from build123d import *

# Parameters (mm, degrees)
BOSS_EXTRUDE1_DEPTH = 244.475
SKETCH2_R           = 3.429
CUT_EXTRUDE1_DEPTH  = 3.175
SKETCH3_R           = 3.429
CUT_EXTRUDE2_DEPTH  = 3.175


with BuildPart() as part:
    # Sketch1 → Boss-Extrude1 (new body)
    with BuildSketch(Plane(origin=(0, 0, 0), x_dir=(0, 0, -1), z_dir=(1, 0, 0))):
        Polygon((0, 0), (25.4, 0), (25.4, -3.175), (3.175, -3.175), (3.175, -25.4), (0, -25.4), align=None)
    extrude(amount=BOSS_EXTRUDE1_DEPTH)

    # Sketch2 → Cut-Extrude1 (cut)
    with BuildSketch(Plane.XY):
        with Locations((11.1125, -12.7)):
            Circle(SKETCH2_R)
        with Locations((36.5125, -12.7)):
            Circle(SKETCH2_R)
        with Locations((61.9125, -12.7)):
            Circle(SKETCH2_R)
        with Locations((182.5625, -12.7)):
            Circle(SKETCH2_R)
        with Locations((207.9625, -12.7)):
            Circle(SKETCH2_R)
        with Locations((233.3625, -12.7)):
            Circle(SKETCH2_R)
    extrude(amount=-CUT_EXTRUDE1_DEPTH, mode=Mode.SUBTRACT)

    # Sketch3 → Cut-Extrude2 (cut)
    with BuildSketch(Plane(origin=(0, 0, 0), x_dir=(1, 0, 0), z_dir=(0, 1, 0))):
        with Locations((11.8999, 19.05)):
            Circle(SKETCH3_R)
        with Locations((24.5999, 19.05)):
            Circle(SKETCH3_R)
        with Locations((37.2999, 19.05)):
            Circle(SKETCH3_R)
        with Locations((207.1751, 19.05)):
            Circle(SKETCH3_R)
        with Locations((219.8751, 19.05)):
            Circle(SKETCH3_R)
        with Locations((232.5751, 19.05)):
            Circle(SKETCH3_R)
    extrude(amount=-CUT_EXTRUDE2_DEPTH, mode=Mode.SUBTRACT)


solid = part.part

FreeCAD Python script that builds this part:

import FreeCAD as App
import Part
import Sketcher
Q = App.Units.Quantity

doc = App.newDocument("Part")
params = doc.addObject("Spreadsheet::Sheet", "Params")
for row, (alias, value) in enumerate([
    ("sketch1_width", "1 in"),
    ("sketch1_width2", "0.875 in"),
    ("pad1_length", "9.625 in"),
    ("sketch2_diameter", "0.27 in"),
    ("pocket1_length", "0.125 in"),
    ("sketch3_diameter", "0.27 in"),
    ("pocket2_length", "0.125 in"),
], start=1):
    params.set(f"A{row}", alias)
    params.set(f"B{row}", "=" + value)
    params.setAlias(f"B{row}", alias)

body = doc.addObject("PartDesign::Body", "Body")

sketch1 = body.newObject("Sketcher::SketchObject", "Sketch")
sketch1.AttachmentSupport = (doc.getObject("YZ_Plane"), [""])
sketch1.MapMode = "FlatFace"
sketch1.addGeometry(Part.LineSegment(App.Vector(0, -25.4, 0), App.Vector(0, 0, 0)), False)
sketch1.addGeometry(Part.LineSegment(App.Vector(0, 0, 0), App.Vector(-25.4, 0, 0)), False)
sketch1.addGeometry(Part.LineSegment(App.Vector(-25.4, 0, 0), App.Vector(-25.4, -3.175, 0)), False)
sketch1.addGeometry(Part.LineSegment(App.Vector(-25.4, -3.175, 0), App.Vector(-3.175, -3.175, 0)), False)
sketch1.addGeometry(Part.LineSegment(App.Vector(-3.175, -3.175, 0), App.Vector(-3.175, -25.4, 0)), False)
sketch1.addGeometry(Part.LineSegment(App.Vector(-3.175, -25.4, 0), App.Vector(0, -25.4, 0)), False)
sketch1.addConstraint(Sketcher.Constraint("Coincident", 0, 2, 1, 1))
sketch1.addConstraint(Sketcher.Constraint("Coincident", 1, 2, 2, 1))
sketch1.addConstraint(Sketcher.Constraint("Coincident", 2, 2, 3, 1))
sketch1.addConstraint(Sketcher.Constraint("Coincident", 3, 2, 4, 1))
sketch1.addConstraint(Sketcher.Constraint("Coincident", 4, 2, 5, 1))
sketch1.addConstraint(Sketcher.Constraint("Coincident", 5, 2, 0, 1))
sketch1.addConstraint(Sketcher.Constraint("Vertical", 0))
sketch1.addConstraint(Sketcher.Constraint("Horizontal", 1))
sketch1.addConstraint(Sketcher.Constraint("Vertical", 2))
sketch1.addConstraint(Sketcher.Constraint("Horizontal", 3))
sketch1.addConstraint(Sketcher.Constraint("Vertical", 4))
sketch1.addConstraint(Sketcher.Constraint("Horizontal", 5))
sketch1.addConstraint(Sketcher.Constraint("Coincident", 0, 2, -1, 1))
sketch1.addConstraint(Sketcher.Constraint("Equal", 1, 0))
sketch1.addConstraint(Sketcher.Constraint("Equal", 5, 2))
sketch1.addConstraint(Sketcher.Constraint("DistanceX", 1, 2, 1, 1, Q("1 in")))
sketch1.addConstraint(Sketcher.Constraint("DistanceX", 3, 1, 3, 2, Q("0.875 in")))
sketch1.setExpression("Constraints[15]", "Params.sketch1_width")
sketch1.setExpression("Constraints[16]", "Params.sketch1_width2")
pad1 = body.newObject("PartDesign::Pad", "Pad")
pad1.Profile = sketch1
pad1.setExpression("Length", "Params.pad1_length")

sketch2 = body.newObject("Sketcher::SketchObject", "Sketch001")
sketch2.AttachmentSupport = (doc.getObject("XY_Plane"), [""])
sketch2.MapMode = "FlatFace"
sketch2.addGeometry(Part.Circle(App.Vector(11.1125, -12.7, 0), App.Vector(0, 0, 1), 3.429), False)
sketch2.addGeometry(Part.Circle(App.Vector(36.5125, -12.7, 0), App.Vector(0, 0, 1), 3.429), False)
sketch2.addGeometry(Part.Circle(App.Vector(61.9125, -12.7, 0), App.Vector(0, 0, 1), 3.429), False)
sketch2.addGeometry(Part.Circle(App.Vector(182.5625, -12.7, 0), App.Vector(0, 0, 1), 3.429), False)
sketch2.addGeometry(Part.Circle(App.Vector(207.9625, -12.7, 0), App.Vector(0, 0, 1), 3.429), False)
sketch2.addGeometry(Part.Circle(App.Vector(233.3625, -12.7, 0), App.Vector(0, 0, 1), 3.429), False)
sketch2.addConstraint(Sketcher.Constraint("Equal", 0, 1))
sketch2.addConstraint(Sketcher.Constraint("Equal", 1, 2))
sketch2.addConstraint(Sketcher.Constraint("Equal", 2, 3))
sketch2.addConstraint(Sketcher.Constraint("Equal", 3, 4))
sketch2.addConstraint(Sketcher.Constraint("Equal", 4, 5))
sketch2.addConstraint(Sketcher.Constraint("Horizontal", 0, 3, 1, 3))
sketch2.addConstraint(Sketcher.Constraint("Horizontal", 1, 3, 2, 3))
sketch2.addConstraint(Sketcher.Constraint("Horizontal", 2, 3, 3, 3))
sketch2.addConstraint(Sketcher.Constraint("Horizontal", 3, 3, 4, 3))
sketch2.addConstraint(Sketcher.Constraint("Horizontal", 4, 3, 5, 3))
sketch2.addConstraint(Sketcher.Constraint("Diameter", 0, Q("0.27 in")))
sketch2.addConstraint(Sketcher.Constraint("DistanceX", 0, 3, 1, 3, Q("1 in")))
sketch2.addConstraint(Sketcher.Constraint("DistanceX", 1, 3, 2, 3, Q("1 in")))
sketch2.addConstraint(Sketcher.Constraint("DistanceX", 3, 3, 4, 3, Q("1 in")))
sketch2.addConstraint(Sketcher.Constraint("DistanceX", 4, 3, 5, 3, Q("1 in")))
sketch2.addConstraint(Sketcher.Constraint("DistanceY", 0, 3, -1, 1, Q("0.5 in")))
sketch2.addConstraint(Sketcher.Constraint("DistanceX", 2, 3, 3, 3, Q("4.75 in")))
sketch2.addConstraint(Sketcher.Constraint("DistanceX", -1, 1, 0, 3, Q("0.4375 in")))
sketch2.setExpression("Constraints[10]", "Params.sketch2_diameter")
pocket1 = body.newObject("PartDesign::Pocket", "Pocket")
pocket1.Profile = sketch2
pocket1.setExpression("Length", "Params.pocket1_length")

sketch3 = body.newObject("Sketcher::SketchObject", "Sketch002")
sketch3.AttachmentSupport = (doc.getObject("XZ_Plane"), [""])
sketch3.MapMode = "FlatFace"
sketch3.addGeometry(Part.Circle(App.Vector(11.8999, -19.05, 0), App.Vector(0, 0, 1), 3.429), False)
sketch3.addGeometry(Part.Circle(App.Vector(24.5999, -19.05, 0), App.Vector(0, 0, 1), 3.429), False)
sketch3.addGeometry(Part.Circle(App.Vector(37.2999, -19.05, 0), App.Vector(0, 0, 1), 3.429), False)
sketch3.addGeometry(Part.Circle(App.Vector(207.1751, -19.05, 0), App.Vector(0, 0, 1), 3.429), False)
sketch3.addGeometry(Part.Circle(App.Vector(219.8751, -19.05, 0), App.Vector(0, 0, 1), 3.429), False)
sketch3.addGeometry(Part.Circle(App.Vector(232.5751, -19.05, 0), App.Vector(0, 0, 1), 3.429), False)
sketch3.addConstraint(Sketcher.Constraint("Equal", 0, 1))
sketch3.addConstraint(Sketcher.Constraint("Equal", 1, 2))
sketch3.addConstraint(Sketcher.Constraint("Equal", 2, 3))
sketch3.addConstraint(Sketcher.Constraint("Equal", 3, 4))
sketch3.addConstraint(Sketcher.Constraint("Equal", 4, 5))
sketch3.addConstraint(Sketcher.Constraint("Horizontal", 0, 3, 1, 3))
sketch3.addConstraint(Sketcher.Constraint("Horizontal", 1, 3, 2, 3))
sketch3.addConstraint(Sketcher.Constraint("Horizontal", 2, 3, 3, 3))
sketch3.addConstraint(Sketcher.Constraint("Horizontal", 3, 3, 4, 3))
sketch3.addConstraint(Sketcher.Constraint("Horizontal", 4, 3, 5, 3))
sketch3.addConstraint(Sketcher.Constraint("Diameter", 0, Q("0.27 in")))
sketch3.addConstraint(Sketcher.Constraint("DistanceX", 0, 3, 2, 3, Q("1 in")))
sketch3.addConstraint(Sketcher.Constraint("DistanceX", 3, 3, 5, 3, Q("1 in")))
sketch3.addConstraint(Sketcher.Constraint("DistanceX", 0, 3, 1, 3, Q("0.5 in")))
sketch3.addConstraint(Sketcher.Constraint("DistanceX", 3, 3, 4, 3, Q("0.5 in")))
sketch3.addConstraint(Sketcher.Constraint("DistanceY", 0, 3, -1, 1, Q("0.75 in")))
sketch3.addConstraint(Sketcher.Constraint("DistanceX", 2, 3, 3, 3, Q("6.688 in")))
sketch3.addConstraint(Sketcher.Constraint("DistanceX", -1, 1, 0, 3, Q("0.4685 in")))
sketch3.setExpression("Constraints[10]", "Params.sketch3_diameter")
pocket2 = body.newObject("PartDesign::Pocket", "Pocket001")
pocket2.Profile = sketch3
pocket2.setExpression("Length", "Params.pocket2_length")
pocket2.Reversed = True

doc.recompute()
